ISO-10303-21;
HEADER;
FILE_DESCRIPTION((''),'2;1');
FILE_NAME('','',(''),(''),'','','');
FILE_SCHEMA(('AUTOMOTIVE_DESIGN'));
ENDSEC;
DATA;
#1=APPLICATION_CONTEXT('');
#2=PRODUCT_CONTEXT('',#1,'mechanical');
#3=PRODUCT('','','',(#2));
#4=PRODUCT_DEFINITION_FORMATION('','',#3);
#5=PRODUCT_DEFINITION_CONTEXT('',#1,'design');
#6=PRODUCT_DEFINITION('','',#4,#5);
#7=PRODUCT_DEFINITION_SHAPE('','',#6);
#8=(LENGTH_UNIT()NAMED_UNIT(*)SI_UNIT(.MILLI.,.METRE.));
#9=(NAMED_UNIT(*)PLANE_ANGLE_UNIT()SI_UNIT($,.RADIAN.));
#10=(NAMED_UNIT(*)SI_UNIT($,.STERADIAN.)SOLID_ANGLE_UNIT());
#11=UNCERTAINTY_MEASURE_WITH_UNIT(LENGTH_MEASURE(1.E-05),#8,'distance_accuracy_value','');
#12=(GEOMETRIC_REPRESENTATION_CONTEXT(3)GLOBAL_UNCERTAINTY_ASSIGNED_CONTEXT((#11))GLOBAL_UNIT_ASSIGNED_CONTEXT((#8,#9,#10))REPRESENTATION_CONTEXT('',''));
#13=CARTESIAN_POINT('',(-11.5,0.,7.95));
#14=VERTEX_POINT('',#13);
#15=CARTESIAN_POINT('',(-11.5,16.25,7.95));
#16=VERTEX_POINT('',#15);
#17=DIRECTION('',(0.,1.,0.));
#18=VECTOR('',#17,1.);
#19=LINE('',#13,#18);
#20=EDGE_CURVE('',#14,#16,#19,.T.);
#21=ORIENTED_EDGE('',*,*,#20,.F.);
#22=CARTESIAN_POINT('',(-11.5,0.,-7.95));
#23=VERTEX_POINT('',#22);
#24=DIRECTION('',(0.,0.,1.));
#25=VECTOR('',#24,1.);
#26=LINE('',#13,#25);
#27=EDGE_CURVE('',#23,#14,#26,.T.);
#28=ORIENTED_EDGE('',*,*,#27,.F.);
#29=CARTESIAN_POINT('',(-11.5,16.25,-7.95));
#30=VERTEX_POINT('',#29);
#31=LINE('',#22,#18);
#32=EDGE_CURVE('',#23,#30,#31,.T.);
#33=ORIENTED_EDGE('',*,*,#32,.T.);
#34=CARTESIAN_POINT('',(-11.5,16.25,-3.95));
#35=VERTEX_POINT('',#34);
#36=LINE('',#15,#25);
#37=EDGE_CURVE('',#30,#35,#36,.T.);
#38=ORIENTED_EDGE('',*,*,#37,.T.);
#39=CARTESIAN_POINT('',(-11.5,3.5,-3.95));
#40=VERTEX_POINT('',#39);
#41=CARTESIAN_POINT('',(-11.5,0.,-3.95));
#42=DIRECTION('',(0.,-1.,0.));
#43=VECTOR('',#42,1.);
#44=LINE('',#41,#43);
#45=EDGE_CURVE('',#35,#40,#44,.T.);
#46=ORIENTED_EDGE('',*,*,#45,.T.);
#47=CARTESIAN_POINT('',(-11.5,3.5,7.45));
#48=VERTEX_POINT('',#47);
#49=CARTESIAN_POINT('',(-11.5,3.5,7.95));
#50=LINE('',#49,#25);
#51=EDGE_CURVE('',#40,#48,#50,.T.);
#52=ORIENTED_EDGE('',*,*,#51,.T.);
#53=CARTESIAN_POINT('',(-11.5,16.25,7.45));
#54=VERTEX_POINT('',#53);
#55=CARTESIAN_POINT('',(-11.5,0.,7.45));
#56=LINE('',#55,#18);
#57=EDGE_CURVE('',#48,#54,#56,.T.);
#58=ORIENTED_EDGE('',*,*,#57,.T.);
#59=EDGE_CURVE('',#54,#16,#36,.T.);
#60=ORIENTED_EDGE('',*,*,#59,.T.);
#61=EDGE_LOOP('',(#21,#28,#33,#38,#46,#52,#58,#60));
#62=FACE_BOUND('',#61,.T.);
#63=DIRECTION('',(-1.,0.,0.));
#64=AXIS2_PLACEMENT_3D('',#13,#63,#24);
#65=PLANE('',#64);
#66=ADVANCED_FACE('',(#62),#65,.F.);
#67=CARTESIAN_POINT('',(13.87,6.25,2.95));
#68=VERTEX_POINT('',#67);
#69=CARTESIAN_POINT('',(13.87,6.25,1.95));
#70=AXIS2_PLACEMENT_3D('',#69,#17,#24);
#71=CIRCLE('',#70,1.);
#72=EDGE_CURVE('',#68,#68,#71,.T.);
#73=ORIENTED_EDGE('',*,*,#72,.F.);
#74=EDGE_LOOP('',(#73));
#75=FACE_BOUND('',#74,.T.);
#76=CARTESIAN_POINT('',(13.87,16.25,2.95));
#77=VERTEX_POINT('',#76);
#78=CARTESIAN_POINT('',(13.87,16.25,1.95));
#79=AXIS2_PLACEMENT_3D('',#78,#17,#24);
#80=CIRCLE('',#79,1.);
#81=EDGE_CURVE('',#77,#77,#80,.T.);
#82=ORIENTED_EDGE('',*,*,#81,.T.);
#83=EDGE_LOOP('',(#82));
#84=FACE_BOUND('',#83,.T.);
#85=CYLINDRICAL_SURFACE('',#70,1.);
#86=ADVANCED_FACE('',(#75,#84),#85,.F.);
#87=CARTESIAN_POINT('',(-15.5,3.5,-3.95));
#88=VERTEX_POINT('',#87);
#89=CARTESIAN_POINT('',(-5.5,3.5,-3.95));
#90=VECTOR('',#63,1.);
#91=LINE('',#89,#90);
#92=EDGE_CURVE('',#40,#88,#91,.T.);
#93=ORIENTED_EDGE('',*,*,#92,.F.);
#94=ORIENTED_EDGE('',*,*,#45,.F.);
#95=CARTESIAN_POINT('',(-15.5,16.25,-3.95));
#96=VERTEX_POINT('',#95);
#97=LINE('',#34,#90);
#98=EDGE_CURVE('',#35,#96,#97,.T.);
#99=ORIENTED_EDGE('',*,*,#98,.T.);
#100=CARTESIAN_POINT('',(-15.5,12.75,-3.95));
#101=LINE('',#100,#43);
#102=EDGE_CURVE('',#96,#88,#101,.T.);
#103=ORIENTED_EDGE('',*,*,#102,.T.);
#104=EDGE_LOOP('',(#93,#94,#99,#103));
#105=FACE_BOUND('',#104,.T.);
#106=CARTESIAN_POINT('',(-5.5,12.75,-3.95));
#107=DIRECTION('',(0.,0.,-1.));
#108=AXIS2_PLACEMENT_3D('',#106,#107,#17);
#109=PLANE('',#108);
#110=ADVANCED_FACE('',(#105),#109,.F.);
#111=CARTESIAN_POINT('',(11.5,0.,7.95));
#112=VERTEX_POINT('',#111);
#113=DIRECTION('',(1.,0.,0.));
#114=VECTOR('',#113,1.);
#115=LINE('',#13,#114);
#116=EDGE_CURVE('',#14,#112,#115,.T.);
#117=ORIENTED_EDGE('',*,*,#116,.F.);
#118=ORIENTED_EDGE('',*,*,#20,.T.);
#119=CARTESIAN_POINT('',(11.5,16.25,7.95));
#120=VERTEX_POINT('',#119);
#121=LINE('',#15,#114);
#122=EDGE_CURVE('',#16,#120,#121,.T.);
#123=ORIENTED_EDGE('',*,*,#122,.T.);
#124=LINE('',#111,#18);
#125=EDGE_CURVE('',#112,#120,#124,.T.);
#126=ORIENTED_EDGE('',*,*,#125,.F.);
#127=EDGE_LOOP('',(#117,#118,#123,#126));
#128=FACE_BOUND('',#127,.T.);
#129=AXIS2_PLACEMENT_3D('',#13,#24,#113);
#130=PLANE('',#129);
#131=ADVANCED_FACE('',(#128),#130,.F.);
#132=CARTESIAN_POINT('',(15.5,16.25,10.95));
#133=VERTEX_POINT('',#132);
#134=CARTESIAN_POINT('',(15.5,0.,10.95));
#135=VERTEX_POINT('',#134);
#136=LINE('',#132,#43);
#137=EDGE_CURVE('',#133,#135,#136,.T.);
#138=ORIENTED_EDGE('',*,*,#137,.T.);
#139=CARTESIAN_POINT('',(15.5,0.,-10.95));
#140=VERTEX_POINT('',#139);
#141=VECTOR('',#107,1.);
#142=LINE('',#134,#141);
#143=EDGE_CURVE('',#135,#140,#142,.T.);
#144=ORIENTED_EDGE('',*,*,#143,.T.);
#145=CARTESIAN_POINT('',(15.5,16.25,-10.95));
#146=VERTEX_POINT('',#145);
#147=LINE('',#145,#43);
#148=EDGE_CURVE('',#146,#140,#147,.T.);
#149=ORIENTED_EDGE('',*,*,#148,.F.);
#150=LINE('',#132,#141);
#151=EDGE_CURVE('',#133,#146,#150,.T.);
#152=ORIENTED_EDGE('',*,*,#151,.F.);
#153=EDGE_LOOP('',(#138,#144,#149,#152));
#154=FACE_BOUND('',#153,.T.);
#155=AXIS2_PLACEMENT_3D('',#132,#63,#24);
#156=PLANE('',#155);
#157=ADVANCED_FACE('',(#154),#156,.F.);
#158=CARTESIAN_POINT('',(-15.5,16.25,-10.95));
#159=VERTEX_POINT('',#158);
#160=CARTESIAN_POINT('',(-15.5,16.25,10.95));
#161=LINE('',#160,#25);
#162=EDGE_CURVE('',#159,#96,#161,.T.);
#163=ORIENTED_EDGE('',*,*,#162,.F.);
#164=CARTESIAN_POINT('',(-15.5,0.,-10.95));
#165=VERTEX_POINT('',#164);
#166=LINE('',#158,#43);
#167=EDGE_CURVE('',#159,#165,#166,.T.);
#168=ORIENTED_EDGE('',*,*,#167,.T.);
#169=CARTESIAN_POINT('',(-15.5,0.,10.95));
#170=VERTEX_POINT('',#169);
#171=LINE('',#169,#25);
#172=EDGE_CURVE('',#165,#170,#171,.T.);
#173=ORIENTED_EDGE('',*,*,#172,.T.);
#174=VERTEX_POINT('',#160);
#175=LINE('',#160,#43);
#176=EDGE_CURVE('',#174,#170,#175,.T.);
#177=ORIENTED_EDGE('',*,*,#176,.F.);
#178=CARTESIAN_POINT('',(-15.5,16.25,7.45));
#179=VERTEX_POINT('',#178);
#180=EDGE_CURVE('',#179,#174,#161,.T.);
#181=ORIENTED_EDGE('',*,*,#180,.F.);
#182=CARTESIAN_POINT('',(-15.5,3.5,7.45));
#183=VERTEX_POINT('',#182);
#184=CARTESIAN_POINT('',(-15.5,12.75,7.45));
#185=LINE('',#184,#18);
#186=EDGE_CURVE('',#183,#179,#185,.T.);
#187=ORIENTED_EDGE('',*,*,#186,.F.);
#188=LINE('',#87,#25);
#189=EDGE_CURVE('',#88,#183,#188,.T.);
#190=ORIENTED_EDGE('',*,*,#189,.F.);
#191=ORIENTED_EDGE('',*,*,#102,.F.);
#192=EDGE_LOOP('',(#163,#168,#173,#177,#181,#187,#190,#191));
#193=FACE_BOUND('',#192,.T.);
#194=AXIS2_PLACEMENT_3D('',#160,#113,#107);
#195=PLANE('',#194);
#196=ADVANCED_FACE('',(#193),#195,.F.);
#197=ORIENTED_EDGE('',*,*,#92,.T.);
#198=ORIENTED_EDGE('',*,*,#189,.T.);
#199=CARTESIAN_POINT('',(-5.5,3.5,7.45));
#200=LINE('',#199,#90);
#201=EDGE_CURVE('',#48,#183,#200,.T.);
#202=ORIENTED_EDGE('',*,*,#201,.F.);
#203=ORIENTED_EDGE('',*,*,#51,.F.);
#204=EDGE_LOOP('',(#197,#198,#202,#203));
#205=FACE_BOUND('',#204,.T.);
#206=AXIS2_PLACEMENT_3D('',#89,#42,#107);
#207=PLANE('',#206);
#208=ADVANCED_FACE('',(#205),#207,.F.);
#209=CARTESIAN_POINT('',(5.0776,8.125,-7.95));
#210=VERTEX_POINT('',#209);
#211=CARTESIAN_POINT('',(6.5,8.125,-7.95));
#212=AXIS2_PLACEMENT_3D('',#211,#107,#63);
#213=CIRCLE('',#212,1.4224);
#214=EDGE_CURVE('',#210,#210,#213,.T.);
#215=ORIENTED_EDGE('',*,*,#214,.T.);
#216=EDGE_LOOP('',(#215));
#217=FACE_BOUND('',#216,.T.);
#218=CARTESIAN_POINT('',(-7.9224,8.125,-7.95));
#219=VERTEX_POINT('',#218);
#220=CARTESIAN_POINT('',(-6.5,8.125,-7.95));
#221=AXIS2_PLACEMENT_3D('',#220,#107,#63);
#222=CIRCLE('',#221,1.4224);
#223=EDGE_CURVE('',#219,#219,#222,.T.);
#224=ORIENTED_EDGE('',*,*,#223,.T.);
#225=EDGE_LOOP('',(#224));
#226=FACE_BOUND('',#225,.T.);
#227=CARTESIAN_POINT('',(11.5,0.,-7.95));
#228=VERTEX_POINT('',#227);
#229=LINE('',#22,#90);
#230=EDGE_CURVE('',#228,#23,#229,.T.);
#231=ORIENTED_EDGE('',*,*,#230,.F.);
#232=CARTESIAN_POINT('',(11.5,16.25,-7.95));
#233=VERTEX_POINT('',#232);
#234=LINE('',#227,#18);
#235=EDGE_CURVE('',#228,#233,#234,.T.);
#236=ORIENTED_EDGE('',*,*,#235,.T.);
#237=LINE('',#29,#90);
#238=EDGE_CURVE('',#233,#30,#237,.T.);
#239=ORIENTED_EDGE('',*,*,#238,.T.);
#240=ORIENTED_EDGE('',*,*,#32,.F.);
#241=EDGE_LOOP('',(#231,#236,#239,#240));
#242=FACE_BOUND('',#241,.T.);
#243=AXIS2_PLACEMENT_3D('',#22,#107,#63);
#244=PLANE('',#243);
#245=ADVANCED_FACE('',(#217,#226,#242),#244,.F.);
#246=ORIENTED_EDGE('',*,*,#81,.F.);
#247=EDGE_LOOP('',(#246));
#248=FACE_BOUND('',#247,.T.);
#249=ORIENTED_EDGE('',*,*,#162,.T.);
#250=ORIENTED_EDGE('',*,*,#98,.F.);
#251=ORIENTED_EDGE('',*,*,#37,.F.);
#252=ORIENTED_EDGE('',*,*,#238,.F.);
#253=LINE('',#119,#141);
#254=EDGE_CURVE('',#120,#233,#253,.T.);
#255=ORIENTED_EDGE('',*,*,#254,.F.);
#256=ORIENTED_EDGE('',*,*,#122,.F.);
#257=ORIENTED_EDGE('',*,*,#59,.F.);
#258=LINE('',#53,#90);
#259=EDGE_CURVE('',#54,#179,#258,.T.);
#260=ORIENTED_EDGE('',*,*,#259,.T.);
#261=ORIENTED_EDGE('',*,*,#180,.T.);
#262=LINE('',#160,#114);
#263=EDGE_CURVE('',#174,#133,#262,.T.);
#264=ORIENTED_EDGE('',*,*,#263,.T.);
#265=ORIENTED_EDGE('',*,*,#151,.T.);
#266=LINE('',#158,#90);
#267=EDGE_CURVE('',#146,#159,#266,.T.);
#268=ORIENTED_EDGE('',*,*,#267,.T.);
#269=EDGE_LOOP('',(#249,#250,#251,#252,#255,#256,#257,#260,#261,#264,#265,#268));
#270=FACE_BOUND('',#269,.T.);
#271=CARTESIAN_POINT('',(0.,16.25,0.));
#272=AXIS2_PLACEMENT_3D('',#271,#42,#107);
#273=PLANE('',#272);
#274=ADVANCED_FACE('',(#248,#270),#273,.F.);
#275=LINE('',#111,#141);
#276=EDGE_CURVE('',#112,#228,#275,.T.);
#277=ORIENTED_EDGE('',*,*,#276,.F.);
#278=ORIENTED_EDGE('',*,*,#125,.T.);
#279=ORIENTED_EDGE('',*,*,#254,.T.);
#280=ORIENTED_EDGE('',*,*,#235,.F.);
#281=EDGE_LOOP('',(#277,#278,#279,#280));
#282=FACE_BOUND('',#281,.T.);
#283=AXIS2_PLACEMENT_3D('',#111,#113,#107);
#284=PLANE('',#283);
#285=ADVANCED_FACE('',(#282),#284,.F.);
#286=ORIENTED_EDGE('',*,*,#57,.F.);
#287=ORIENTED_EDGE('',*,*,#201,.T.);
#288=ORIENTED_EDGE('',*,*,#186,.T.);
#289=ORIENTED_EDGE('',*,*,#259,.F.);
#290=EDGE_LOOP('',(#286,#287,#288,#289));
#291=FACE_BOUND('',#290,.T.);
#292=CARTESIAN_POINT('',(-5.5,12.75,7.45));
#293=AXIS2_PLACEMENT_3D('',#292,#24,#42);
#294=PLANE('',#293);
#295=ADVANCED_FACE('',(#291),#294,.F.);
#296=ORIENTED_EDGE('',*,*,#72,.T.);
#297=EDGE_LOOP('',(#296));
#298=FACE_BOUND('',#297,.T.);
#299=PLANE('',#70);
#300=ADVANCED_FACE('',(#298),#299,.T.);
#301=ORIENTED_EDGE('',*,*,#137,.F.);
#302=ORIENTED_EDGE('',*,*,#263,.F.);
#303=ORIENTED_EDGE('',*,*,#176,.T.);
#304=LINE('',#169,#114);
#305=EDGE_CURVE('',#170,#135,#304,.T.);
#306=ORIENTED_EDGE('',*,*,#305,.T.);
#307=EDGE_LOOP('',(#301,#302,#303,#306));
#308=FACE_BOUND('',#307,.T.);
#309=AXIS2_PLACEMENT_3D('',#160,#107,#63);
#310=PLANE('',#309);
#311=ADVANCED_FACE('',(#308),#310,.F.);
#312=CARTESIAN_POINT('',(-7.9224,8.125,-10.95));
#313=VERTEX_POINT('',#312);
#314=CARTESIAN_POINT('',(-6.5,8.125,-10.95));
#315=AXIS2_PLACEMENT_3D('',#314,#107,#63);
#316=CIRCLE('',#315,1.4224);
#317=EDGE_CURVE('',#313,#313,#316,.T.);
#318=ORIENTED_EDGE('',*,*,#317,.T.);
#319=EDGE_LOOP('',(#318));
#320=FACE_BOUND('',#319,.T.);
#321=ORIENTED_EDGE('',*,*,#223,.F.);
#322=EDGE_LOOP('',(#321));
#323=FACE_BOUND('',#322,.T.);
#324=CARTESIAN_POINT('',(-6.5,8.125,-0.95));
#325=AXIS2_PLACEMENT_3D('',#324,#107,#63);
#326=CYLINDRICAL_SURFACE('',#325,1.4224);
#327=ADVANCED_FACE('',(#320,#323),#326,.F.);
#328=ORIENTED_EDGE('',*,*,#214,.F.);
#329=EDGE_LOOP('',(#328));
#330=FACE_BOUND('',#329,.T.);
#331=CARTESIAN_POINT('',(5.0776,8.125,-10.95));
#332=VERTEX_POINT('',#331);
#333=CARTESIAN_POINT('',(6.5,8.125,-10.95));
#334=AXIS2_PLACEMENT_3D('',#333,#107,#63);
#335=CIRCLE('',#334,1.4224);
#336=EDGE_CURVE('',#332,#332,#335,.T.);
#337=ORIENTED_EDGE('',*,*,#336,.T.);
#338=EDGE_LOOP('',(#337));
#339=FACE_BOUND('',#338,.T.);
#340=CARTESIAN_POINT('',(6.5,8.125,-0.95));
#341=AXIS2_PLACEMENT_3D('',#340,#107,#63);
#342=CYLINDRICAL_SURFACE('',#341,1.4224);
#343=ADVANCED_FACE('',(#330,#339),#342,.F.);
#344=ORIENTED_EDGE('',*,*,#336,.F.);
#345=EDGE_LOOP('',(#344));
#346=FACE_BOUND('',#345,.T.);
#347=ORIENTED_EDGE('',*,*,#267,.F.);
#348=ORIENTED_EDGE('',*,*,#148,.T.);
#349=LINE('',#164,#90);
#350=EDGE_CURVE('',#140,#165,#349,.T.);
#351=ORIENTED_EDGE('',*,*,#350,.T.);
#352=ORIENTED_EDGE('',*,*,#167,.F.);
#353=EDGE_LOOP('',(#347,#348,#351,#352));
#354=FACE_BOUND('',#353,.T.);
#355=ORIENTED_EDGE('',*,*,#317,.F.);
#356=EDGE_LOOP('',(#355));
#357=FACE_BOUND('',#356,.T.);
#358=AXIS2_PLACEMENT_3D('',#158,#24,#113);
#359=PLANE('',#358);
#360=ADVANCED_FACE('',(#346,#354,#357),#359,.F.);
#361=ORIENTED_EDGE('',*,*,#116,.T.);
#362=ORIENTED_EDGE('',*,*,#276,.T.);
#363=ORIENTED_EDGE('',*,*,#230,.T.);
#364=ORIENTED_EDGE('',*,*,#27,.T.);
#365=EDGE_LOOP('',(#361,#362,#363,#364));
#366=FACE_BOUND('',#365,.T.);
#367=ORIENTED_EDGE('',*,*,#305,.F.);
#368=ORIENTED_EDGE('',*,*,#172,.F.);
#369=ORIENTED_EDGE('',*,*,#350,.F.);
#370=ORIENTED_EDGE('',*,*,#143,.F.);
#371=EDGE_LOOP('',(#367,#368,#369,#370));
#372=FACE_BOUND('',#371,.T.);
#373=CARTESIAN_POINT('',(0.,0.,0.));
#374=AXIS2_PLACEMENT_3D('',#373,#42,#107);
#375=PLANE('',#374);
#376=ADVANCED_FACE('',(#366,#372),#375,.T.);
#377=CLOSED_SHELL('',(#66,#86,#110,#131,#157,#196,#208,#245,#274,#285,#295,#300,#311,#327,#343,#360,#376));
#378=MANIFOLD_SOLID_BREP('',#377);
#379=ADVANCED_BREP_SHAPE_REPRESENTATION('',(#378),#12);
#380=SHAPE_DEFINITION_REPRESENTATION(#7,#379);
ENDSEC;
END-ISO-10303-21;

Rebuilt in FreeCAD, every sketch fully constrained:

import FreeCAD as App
import Part
import Sketcher

doc = App.newDocument("Part")
body = doc.addObject("PartDesign::Body", "Body")

# Sketch on XZ plane
sketch1 = body.newObject("Sketcher::SketchObject", "Sketch")
sketch1.AttachmentSupport = (doc.getObject("XZ_Plane"), [""])
sketch1.MapMode = "FlatFace"
sketch1.addGeometry(Part.LineSegment(App.Vector(-16, -11, 0), App.Vector(-16, 11, 0)), False)
sketch1.addGeometry(Part.LineSegment(App.Vector(-16, 11, 0), App.Vector(16, 11, 0)), False)
sketch1.addGeometry(Part.LineSegment(App.Vector(16, 11, 0), App.Vector(16, -11, 0)), False)
sketch1.addGeometry(Part.LineSegment(App.Vector(16, -11, 0), App.Vector(-16, -11, 0)), False)
sketch1.addConstraint(Sketcher.Constraint("Coincident", 0, 2, 1, 1))
sketch1.addConstraint(Sketcher.Constraint("Coincident", 1, 2, 2, 1))
sketch1.addConstraint(Sketcher.Constraint("Coincident", 2, 2, 3, 1))
sketch1.addConstraint(Sketcher.Constraint("Coincident", 3, 2, 0, 1))
sketch1.addConstraint(Sketcher.Constraint("Vertical", 0))
sketch1.addConstraint(Sketcher.Constraint("Horizontal", 1))
sketch1.addConstraint(Sketcher.Constraint("Vertical", 2))
sketch1.addConstraint(Sketcher.Constraint("Horizontal", 3))
sketch1.addConstraint(Sketcher.Constraint("Symmetric", 0, 2, 2, 2, -1, 1))
sketch1.addConstraint(Sketcher.Constraint("DistanceX", 1, 1, 1, 2, 31.0))
sketch1.addConstraint(Sketcher.Constraint("DistanceY", 0, 1, 0, 2, 21.9))
pad1 = body.newObject("PartDesign::Pad", "Pad")
pad1.Profile = sketch1
pad1.Length = 16.25
pad1.Reversed = True

# Sketch on XZ plane
sketch2 = body.newObject("Sketcher::SketchObject", "Sketch001")
sketch2.AttachmentSupport = (doc.getObject("XZ_Plane"), [""])
sketch2.MapMode = "FlatFace"
sketch2.AttachmentOffset = App.Placement(App.Vector(0, 0, -16.25), App.Rotation())
sketch2.addGeometry(Part.LineSegment(App.Vector(-12, -8, 0), App.Vector(-12, 8, 0)), False)
sketch2.addGeometry(Part.LineSegment(App.Vector(-12, 8, 0), App.Vector(12, 8, 0)), False)
sketch2.addGeometry(Part.LineSegment(App.Vector(12, 8, 0), App.Vector(12, -8, 0)), False)
sketch2.addGeometry(Part.LineSegment(App.Vector(12, -8, 0), App.Vector(-12, -8, 0)), False)
sketch2.addConstraint(Sketcher.Constraint("Coincident", 0, 2, 1, 1))
sketch2.addConstraint(Sketcher.Constraint("Coincident", 1, 2, 2, 1))
sketch2.addConstraint(Sketcher.Constraint("Coincident", 2, 2, 3, 1))
sketch2.addConstraint(Sketcher.Constraint("Coincident", 3, 2, 0, 1))
sketch2.addConstraint(Sketcher.Constraint("Vertical", 0))
sketch2.addConstraint(Sketcher.Constraint("Horizontal", 1))
sketch2.addConstraint(Sketcher.Constraint("Vertical", 2))
sketch2.addConstraint(Sketcher.Constraint("Horizontal", 3))
sketch2.addConstraint(Sketcher.Constraint("Symmetric", 0, 2, 2, 2, -1, 1))
sketch2.addConstraint(Sketcher.Constraint("DistanceX", 1, 1, 1, 2, 23.0))
sketch2.addConstraint(Sketcher.Constraint("DistanceY", 0, 1, 0, 2, 15.9))
pocket1 = body.newObject("PartDesign::Pocket", "Pocket")
pocket1.Profile = sketch2
pocket1.Type = "ThroughAll"
pocket1.Reversed = True

# Sketch on XY plane
sketch3 = body.newObject("Sketcher::SketchObject", "Sketch002")
sketch3.AttachmentSupport = (doc.getObject("XY_Plane"), [""])
sketch3.MapMode = "FlatFace"
sketch3.AttachmentOffset = App.Placement(App.Vector(0, 0, -10.95), App.Rotation())
sketch3.addGeometry(Part.Circle(App.Vector(6.5, 8.1, 0), App.Vector(0, 0, 1), 1.4), False)
sketch3.addGeometry(Part.Circle(App.Vector(-6.5, 8.1, 0), App.Vector(0, 0, 1), 1.4), False)
sketch3.addConstraint(Sketcher.Constraint("Equal", 0, 1))
sketch3.addConstraint(Sketcher.Constraint("Symmetric", 0, 3, 1, 3, -2))
sketch3.addConstraint(Sketcher.Constraint("DistanceX", 1, 3, 0, 3, 13.0))
sketch3.addConstraint(Sketcher.Constraint("Diameter", 0, 2.8448))
sketch3.addConstraint(Sketcher.Constraint("DistanceY", -1, 1, 0, 3, 8.125))
pocket2 = body.newObject("PartDesign::Pocket", "Pocket001")
pocket2.Profile = sketch3
pocket2.Length = 10
pocket2.Reversed = True

# Sketch on YZ plane
sketch4 = body.newObject("Sketcher::SketchObject", "Sketch003")
sketch4.AttachmentSupport = (doc.getObject("YZ_Plane"), [""])
sketch4.MapMode = "FlatFace"
sketch4.AttachmentOffset = App.Placement(App.Vector(0, 0, -15.5), App.Rotation())
sketch4.addGeometry(Part.LineSegment(App.Vector(13, -4, 0), App.Vector(4, -4, 0)), False)
sketch4.addGeometry(Part.LineSegment(App.Vector(4, -4, 0), App.Vector(4, 7, 0)), False)
sketch4.addGeometry(Part.LineSegment(App.Vector(4, 7, 0), App.Vector(13, 7, 0)), False)
sketch4.addGeometry(Part.LineSegment(App.Vector(13, 7, 0), App.Vector(13, -4, 0)), False)
sketch4.addConstraint(Sketcher.Constraint("Coincident", 0, 2, 1, 1))
sketch4.addConstraint(Sketcher.Constraint("Coincident", 1, 2, 2, 1))
sketch4.addConstraint(Sketcher.Constraint("Coincident", 2, 2, 3, 1))
sketch4.addConstraint(Sketcher.Constraint("Coincident", 3, 2, 0, 1))
sketch4.addConstraint(Sketcher.Constraint("Horizontal", 0))
sketch4.addConstraint(Sketcher.Constraint("Vertical", 1))
sketch4.addConstraint(Sketcher.Constraint("Horizontal", 2))
sketch4.addConstraint(Sketcher.Constraint("Vertical", 3))
sketch4.addConstraint(Sketcher.Constraint("DistanceY", 1, 1, 1, 2, 11.4))
sketch4.addConstraint(Sketcher.Constraint("DistanceX", 0, 2, 0, 1, 9.25))
sketch4.addConstraint(Sketcher.Constraint("DistanceX", -1, 1, 0, 2, 3.5))
sketch4.addConstraint(Sketcher.Constraint("DistanceY", 0, 2, -1, 1, 3.95))
pocket3 = body.newObject("PartDesign::Pocket", "Pocket002")
pocket3.Profile = sketch4
pocket3.Length = 10
pocket3.Reversed = True

# Sketch on XZ plane
sketch5 = body.newObject("Sketcher::SketchObject", "Sketch004")
sketch5.AttachmentSupport = (doc.getObject("XZ_Plane"), [""])
sketch5.MapMode = "FlatFace"
sketch5.AttachmentOffset = App.Placement(App.Vector(0, 0, -16.25), App.Rotation())
sketch5.addGeometry(Part.Circle(App.Vector(-13.4, 1.9, 0), App.Vector(0, 0, 1), 1), False)
sketch5.addGeometry(Part.Circle(App.Vector(13.9, 1.9, 0), App.Vector(0, 0, 1), 1), False)
sketch5.addConstraint(Sketcher.Constraint("Equal", 0, 1))
sketch5.addConstraint(Sketcher.Constraint("Horizontal", 0, 3, 1, 3))
sketch5.addConstraint(Sketcher.Constraint("Diameter", 0, 2.0))
sketch5.addConstraint(Sketcher.Constraint("DistanceX", 0, 3, -1, 1, 13.37))
sketch5.addConstraint(Sketcher.Constraint("DistanceY", -1, 1, 0, 3, 1.95))
sketch5.addConstraint(Sketcher.Constraint("DistanceX", -1, 1, 1, 3, 13.87))
pocket4 = body.newObject("PartDesign::Pocket", "Pocket003")
pocket4.Profile = sketch5
pocket4.Length = 10
pocket4.Reversed = True

# Sketch on YZ plane
sketch6 = body.newObject("Sketcher::SketchObject", "Sketch005")
sketch6.AttachmentSupport = (doc.getObject("YZ_Plane"), [""])
sketch6.MapMode = "FlatFace"
sketch6.AttachmentOffset = App.Placement(App.Vector(0, 0, -15.5), App.Rotation())
sketch6.addGeometry(Part.LineSegment(App.Vector(16.2, -4, 0), App.Vector(12.8, -4, 0)), False)
sketch6.addGeometry(Part.LineSegment(App.Vector(12.8, -4, 0), App.Vector(12.8, 7.5, 0)), False)
sketch6.addGeometry(Part.LineSegment(App.Vector(12.8, 7.5, 0), App.Vector(16.2, 7.5, 0)), False)
sketch6.addGeometry(Part.LineSegment(App.Vector(16.2, 7.5, 0), App.Vector(16.2, -4, 0)), False)
sketch6.addConstraint(Sketcher.Constraint("Coincident", 0, 2, 1, 1))
sketch6.addConstraint(Sketcher.Constraint("Coincident", 1, 2, 2, 1))
sketch6.addConstraint(Sketcher.Constraint("Coincident", 2, 2, 3, 1))
sketch6.addConstraint(Sketcher.Constraint("Coincident", 3, 2, 0, 1))
sketch6.addConstraint(Sketcher.Constraint("Horizontal", 0))
sketch6.addConstraint(Sketcher.Constraint("Vertical", 1))
sketch6.addConstraint(Sketcher.Constraint("Horizontal", 2))
sketch6.addConstraint(Sketcher.Constraint("Vertical", 3))
sketch6.addConstraint(Sketcher.Constraint("DistanceX", 0, 2, 0, 1, 3.5))
sketch6.addConstraint(Sketcher.Constraint("DistanceY", 1, 1, 1, 2, 11.4))
sketch6.addConstraint(Sketcher.Constraint("DistanceX", -1, 1, 0, 2, 12.75))
sketch6.addConstraint(Sketcher.Constraint("DistanceY", 0, 2, -1, 1, 3.95))
pocket5 = body.newObject("PartDesign::Pocket", "Pocket004")
pocket5.Profile = sketch6
pocket5.Length = 4
pocket5.Reversed = True

doc.recompute()
